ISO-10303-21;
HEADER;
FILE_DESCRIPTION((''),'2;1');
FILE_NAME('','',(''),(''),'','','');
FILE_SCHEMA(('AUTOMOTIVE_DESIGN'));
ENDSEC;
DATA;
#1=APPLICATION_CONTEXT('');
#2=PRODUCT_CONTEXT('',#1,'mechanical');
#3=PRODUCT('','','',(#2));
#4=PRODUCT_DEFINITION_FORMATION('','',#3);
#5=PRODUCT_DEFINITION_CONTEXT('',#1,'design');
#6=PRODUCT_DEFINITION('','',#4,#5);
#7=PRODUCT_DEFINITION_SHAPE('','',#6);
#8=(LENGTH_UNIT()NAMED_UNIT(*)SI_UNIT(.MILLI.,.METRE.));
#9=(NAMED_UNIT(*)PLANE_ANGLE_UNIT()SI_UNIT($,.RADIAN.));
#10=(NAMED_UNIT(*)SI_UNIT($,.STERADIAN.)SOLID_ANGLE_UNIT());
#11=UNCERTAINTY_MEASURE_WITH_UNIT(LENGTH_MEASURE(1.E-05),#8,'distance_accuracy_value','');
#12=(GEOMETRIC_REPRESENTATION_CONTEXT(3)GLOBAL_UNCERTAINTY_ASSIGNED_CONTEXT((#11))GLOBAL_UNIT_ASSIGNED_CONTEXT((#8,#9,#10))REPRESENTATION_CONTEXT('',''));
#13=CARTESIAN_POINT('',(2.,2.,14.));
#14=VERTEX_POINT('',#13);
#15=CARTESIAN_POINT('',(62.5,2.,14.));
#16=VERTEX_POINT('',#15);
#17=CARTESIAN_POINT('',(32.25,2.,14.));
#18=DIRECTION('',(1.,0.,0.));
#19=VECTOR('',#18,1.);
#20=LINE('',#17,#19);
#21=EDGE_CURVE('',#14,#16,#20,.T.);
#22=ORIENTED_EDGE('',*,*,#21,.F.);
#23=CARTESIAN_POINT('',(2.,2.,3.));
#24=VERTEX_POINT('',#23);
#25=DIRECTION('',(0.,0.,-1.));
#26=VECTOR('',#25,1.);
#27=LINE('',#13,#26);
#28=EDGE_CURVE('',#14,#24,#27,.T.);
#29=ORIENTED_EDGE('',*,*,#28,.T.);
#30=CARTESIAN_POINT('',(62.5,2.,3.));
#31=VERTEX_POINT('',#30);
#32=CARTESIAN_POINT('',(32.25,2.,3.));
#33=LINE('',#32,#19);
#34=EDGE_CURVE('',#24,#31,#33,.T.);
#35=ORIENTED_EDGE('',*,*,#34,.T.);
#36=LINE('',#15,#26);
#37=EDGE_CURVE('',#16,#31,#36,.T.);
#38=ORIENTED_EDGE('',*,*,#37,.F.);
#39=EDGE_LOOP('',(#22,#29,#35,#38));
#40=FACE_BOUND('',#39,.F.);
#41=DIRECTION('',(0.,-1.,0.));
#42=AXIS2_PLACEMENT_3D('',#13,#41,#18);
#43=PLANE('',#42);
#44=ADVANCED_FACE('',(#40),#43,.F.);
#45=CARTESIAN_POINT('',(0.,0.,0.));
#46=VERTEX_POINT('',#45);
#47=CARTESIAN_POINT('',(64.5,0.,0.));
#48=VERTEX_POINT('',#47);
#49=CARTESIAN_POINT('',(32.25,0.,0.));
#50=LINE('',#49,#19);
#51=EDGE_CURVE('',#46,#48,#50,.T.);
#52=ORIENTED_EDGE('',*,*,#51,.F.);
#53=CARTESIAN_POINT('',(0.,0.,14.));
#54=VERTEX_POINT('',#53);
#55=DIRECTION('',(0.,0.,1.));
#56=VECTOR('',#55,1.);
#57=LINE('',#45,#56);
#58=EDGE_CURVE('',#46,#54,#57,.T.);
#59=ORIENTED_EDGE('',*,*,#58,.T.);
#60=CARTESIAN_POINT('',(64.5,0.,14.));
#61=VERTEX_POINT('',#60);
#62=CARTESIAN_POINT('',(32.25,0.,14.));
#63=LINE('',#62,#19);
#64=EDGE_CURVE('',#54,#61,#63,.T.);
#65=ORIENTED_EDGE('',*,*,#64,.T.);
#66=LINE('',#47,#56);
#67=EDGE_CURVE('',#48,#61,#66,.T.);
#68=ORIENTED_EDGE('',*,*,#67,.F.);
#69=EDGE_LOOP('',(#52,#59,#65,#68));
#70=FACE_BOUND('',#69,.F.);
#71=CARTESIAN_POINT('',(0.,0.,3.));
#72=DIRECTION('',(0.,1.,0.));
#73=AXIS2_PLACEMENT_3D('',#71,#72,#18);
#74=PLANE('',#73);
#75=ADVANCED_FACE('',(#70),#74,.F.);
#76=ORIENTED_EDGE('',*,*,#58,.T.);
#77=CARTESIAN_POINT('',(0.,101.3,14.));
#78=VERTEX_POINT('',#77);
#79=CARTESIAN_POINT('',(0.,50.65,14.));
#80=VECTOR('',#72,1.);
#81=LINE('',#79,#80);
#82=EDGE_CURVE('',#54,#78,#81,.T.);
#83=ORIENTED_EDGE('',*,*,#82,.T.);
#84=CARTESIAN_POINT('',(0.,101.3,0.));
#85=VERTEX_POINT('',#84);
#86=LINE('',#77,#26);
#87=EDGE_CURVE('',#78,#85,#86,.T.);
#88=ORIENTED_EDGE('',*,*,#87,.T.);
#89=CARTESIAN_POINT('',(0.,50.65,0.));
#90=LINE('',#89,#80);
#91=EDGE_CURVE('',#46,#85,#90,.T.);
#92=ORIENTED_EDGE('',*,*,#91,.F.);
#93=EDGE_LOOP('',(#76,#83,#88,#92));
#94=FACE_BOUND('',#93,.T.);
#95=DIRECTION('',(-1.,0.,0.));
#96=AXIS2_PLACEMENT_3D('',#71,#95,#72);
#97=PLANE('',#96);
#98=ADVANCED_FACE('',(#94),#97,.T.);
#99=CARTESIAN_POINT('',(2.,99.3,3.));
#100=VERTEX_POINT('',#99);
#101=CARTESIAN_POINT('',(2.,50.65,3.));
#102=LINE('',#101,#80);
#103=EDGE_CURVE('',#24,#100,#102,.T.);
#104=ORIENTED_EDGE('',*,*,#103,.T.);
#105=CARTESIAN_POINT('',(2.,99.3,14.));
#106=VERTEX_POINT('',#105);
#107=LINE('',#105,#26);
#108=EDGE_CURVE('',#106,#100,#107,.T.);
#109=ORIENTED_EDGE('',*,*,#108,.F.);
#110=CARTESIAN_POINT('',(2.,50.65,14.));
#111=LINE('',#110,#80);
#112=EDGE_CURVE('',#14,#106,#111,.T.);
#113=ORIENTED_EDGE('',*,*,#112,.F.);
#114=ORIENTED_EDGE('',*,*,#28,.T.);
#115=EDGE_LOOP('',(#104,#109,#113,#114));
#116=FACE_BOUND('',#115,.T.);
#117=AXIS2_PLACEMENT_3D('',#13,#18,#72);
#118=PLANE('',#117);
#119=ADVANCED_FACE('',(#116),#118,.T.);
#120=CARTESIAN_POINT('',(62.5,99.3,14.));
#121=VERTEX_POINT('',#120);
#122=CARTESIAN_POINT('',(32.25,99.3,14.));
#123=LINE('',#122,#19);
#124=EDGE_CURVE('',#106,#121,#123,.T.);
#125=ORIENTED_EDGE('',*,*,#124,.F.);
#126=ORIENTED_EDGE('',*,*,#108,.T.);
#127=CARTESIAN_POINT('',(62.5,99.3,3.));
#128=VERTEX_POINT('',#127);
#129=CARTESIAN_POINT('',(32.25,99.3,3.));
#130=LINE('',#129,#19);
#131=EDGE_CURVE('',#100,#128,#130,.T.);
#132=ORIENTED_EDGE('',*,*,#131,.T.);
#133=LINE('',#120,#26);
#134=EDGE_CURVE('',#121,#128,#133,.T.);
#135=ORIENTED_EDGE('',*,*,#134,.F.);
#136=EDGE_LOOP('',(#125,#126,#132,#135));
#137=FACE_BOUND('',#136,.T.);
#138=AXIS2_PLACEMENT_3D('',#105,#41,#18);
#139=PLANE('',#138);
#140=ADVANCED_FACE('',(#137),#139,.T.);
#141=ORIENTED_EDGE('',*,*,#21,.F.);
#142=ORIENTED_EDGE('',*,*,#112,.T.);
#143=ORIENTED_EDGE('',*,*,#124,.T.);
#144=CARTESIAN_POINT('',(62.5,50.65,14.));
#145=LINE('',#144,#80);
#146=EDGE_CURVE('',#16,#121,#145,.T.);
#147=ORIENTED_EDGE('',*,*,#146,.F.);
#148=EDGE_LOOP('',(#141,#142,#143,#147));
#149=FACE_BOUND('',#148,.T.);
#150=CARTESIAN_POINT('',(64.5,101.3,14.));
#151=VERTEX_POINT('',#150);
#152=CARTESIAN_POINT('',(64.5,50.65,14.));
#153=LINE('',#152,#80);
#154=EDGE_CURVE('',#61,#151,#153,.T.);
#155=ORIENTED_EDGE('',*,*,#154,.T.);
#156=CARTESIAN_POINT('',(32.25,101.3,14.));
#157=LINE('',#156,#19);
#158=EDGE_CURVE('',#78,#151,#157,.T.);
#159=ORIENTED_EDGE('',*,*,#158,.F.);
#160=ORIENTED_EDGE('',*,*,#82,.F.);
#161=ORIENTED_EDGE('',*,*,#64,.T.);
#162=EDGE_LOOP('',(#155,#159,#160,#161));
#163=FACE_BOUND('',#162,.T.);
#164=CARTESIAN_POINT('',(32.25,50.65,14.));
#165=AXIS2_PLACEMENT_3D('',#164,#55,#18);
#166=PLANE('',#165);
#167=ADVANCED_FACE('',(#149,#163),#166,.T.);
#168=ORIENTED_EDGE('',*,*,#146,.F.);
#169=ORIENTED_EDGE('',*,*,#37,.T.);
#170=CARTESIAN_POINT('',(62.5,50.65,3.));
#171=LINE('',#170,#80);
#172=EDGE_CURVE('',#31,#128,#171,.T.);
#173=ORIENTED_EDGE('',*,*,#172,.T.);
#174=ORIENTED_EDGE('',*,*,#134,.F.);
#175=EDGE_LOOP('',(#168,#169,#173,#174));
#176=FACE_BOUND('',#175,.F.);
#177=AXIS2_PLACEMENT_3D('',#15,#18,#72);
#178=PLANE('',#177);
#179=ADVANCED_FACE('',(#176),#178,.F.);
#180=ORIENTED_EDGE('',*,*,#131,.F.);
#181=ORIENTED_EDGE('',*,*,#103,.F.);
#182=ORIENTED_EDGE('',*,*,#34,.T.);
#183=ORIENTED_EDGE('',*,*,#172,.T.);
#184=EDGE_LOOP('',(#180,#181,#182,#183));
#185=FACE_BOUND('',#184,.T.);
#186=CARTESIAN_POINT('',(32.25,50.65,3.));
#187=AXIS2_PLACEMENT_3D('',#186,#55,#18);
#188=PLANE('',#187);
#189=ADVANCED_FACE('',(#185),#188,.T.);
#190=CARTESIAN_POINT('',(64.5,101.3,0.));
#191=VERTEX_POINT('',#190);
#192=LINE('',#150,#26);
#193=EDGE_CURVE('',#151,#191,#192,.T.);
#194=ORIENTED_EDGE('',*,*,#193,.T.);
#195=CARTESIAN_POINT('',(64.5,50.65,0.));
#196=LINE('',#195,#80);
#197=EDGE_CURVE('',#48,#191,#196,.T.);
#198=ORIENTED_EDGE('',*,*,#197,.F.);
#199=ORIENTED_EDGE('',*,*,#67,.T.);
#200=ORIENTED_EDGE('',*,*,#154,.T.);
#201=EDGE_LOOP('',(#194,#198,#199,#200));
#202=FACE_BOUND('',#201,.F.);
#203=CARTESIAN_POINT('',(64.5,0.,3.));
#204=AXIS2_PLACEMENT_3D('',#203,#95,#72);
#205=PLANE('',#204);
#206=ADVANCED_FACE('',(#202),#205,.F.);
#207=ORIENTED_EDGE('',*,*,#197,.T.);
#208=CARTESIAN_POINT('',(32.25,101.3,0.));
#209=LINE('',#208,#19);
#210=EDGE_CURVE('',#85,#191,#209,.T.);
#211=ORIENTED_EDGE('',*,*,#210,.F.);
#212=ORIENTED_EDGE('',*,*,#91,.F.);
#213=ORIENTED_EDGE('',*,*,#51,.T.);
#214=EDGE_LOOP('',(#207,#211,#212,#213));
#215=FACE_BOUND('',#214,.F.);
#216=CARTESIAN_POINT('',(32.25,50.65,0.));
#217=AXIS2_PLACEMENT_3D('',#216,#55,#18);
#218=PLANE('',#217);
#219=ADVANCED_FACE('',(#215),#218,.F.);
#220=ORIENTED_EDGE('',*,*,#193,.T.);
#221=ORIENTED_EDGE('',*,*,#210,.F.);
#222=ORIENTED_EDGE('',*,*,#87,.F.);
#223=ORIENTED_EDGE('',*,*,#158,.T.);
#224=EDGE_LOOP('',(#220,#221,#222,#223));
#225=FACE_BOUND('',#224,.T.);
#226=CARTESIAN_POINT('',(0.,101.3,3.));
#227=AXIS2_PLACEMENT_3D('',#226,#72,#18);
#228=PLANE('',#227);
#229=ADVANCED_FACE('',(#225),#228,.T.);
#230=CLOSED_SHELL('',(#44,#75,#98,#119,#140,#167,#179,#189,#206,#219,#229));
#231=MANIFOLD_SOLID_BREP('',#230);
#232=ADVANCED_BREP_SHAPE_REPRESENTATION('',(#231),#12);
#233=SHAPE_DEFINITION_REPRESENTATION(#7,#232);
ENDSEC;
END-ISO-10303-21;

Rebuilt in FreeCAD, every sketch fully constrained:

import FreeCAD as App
import Part
import Sketcher
from FreeCAD import Vector

doc = App.newDocument("Part")
body = doc.addObject("PartDesign::Body", "Body")

sketch1 = doc.addObject("Sketcher::SketchObject", "Sketch")
body.addObject(sketch1)
sketch1.AttachmentSupport = (doc.XY_Plane, [""])
sketch1.MapMode = "FlatFace"
sketch1.addGeometry([
    Part.LineSegment(Vector(0, 101.3, 0), Vector(0, 0, 0)),
    Part.LineSegment(Vector(0, 0, 0), Vector(64.5, 0, 0)),
    Part.LineSegment(Vector(64.5, 0, 0), Vector(64.5, 101.3, 0)),
    Part.LineSegment(Vector(64.5, 101.3, 0), Vector(0, 101.3, 0)),
], False)
sketch1.addConstraint([
    Sketcher.Constraint("Coincident", 0, 2, 1, 1),
    Sketcher.Constraint("Coincident", 1, 2, 2, 1),
    Sketcher.Constraint("Coincident", 2, 2, 3, 1),
    Sketcher.Constraint("Coincident", 3, 2, 0, 1),
    Sketcher.Constraint("Vertical", 0),
    Sketcher.Constraint("Horizontal", 1),
    Sketcher.Constraint("Vertical", 2),
    Sketcher.Constraint("Horizontal", 3),
    Sketcher.Constraint("Coincident", 0, 2, -1, 1),
    Sketcher.Constraint("DistanceX", 1, 1, 1, 2, 64.5),
    Sketcher.Constraint("DistanceY", 0, 2, 0, 1, 101.3),
])
pad1 = doc.addObject("PartDesign::Pad", "Pad")
body.addObject(pad1)
pad1.Profile = sketch1
pad1.Length = 3

sketch2 = doc.addObject("Sketcher::SketchObject", "Sketch001")
body.addObject(sketch2)
sketch2.AttachmentSupport = (doc.XY_Plane, [""])
sketch2.MapMode = "FlatFace"
sketch2.AttachmentOffset = App.Placement(Vector(0, 0, 3), App.Rotation())
sketch2.addGeometry([
    Part.LineSegment(Vector(0, 101.3, 0), Vector(0, 0, 0)),
    Part.LineSegment(Vector(0, 0, 0), Vector(64.5, 0, 0)),
    Part.LineSegment(Vector(64.5, 0, 0), Vector(64.5, 101.3, 0)),
    Part.LineSegment(Vector(64.5, 101.3, 0), Vector(0, 101.3, 0)),
], False)
sketch2.addConstraint([
    Sketcher.Constraint("Coincident", 0, 2, 1, 1),
    Sketcher.Constraint("Coincident", 1, 2, 2, 1),
    Sketcher.Constraint("Coincident", 2, 2, 3, 1),
    Sketcher.Constraint("Coincident", 3, 2, 0, 1),
    Sketcher.Constraint("Vertical", 0),
    Sketcher.Constraint("Horizontal", 1),
    Sketcher.Constraint("Vertical", 2),
    Sketcher.Constraint("Horizontal", 3),
    Sketcher.Constraint("Coincident", 0, 2, -1, 1),
    Sketcher.Constraint("DistanceX", 1, 1, 1, 2, 64.5),
    Sketcher.Constraint("DistanceY", 0, 2, 0, 1, 101.3),
])
pad2 = doc.addObject("PartDesign::Pad", "Pad001")
body.addObject(pad2)
pad2.Profile = sketch2
pad2.Length = 11

sketch3 = doc.addObject("Sketcher::SketchObject", "Sketch002")
body.addObject(sketch3)
sketch3.AttachmentSupport = (doc.XY_Plane, [""])
sketch3.MapMode = "FlatFace"
sketch3.AttachmentOffset = App.Placement(Vector(0, 0, 14), App.Rotation())
sketch3.addGeometry([
    Part.LineSegment(Vector(2, 99.3, 0), Vector(2, 2, 0)),
    Part.LineSegment(Vector(2, 2, 0), Vector(62.5, 2, 0)),
    Part.LineSegment(Vector(62.5, 2, 0), Vector(62.5, 99.3, 0)),
    Part.LineSegment(Vector(62.5, 99.3, 0), Vector(2, 99.3, 0)),
], False)
sketch3.addConstraint([
    Sketcher.Constraint("Coincident", 0, 2, 1, 1),
    Sketcher.Constraint("Coincident", 1, 2, 2, 1),
    Sketcher.Constraint("Coincident", 2, 2, 3, 1),
    Sketcher.Constraint("Coincident", 3, 2, 0, 1),
    Sketcher.Constraint("Vertical", 0),
    Sketcher.Constraint("Horizontal", 1),
    Sketcher.Constraint("Vertical", 2),
    Sketcher.Constraint("Horizontal", 3),
    Sketcher.Constraint("DistanceX", 1, 1, 1, 2, 60.5),
    Sketcher.Constraint("DistanceY", 0, 2, 0, 1, 97.3),
    Sketcher.Constraint("DistanceX", -1, 1, 0, 2, 2.0),
    Sketcher.Constraint("DistanceY", -1, 1, 0, 2, 2.0),
])
pocket1 = doc.addObject("PartDesign::Pocket", "Pocket")
body.addObject(pocket1)
pocket1.Profile = sketch3
pocket1.Length = 11

doc.recompute()
